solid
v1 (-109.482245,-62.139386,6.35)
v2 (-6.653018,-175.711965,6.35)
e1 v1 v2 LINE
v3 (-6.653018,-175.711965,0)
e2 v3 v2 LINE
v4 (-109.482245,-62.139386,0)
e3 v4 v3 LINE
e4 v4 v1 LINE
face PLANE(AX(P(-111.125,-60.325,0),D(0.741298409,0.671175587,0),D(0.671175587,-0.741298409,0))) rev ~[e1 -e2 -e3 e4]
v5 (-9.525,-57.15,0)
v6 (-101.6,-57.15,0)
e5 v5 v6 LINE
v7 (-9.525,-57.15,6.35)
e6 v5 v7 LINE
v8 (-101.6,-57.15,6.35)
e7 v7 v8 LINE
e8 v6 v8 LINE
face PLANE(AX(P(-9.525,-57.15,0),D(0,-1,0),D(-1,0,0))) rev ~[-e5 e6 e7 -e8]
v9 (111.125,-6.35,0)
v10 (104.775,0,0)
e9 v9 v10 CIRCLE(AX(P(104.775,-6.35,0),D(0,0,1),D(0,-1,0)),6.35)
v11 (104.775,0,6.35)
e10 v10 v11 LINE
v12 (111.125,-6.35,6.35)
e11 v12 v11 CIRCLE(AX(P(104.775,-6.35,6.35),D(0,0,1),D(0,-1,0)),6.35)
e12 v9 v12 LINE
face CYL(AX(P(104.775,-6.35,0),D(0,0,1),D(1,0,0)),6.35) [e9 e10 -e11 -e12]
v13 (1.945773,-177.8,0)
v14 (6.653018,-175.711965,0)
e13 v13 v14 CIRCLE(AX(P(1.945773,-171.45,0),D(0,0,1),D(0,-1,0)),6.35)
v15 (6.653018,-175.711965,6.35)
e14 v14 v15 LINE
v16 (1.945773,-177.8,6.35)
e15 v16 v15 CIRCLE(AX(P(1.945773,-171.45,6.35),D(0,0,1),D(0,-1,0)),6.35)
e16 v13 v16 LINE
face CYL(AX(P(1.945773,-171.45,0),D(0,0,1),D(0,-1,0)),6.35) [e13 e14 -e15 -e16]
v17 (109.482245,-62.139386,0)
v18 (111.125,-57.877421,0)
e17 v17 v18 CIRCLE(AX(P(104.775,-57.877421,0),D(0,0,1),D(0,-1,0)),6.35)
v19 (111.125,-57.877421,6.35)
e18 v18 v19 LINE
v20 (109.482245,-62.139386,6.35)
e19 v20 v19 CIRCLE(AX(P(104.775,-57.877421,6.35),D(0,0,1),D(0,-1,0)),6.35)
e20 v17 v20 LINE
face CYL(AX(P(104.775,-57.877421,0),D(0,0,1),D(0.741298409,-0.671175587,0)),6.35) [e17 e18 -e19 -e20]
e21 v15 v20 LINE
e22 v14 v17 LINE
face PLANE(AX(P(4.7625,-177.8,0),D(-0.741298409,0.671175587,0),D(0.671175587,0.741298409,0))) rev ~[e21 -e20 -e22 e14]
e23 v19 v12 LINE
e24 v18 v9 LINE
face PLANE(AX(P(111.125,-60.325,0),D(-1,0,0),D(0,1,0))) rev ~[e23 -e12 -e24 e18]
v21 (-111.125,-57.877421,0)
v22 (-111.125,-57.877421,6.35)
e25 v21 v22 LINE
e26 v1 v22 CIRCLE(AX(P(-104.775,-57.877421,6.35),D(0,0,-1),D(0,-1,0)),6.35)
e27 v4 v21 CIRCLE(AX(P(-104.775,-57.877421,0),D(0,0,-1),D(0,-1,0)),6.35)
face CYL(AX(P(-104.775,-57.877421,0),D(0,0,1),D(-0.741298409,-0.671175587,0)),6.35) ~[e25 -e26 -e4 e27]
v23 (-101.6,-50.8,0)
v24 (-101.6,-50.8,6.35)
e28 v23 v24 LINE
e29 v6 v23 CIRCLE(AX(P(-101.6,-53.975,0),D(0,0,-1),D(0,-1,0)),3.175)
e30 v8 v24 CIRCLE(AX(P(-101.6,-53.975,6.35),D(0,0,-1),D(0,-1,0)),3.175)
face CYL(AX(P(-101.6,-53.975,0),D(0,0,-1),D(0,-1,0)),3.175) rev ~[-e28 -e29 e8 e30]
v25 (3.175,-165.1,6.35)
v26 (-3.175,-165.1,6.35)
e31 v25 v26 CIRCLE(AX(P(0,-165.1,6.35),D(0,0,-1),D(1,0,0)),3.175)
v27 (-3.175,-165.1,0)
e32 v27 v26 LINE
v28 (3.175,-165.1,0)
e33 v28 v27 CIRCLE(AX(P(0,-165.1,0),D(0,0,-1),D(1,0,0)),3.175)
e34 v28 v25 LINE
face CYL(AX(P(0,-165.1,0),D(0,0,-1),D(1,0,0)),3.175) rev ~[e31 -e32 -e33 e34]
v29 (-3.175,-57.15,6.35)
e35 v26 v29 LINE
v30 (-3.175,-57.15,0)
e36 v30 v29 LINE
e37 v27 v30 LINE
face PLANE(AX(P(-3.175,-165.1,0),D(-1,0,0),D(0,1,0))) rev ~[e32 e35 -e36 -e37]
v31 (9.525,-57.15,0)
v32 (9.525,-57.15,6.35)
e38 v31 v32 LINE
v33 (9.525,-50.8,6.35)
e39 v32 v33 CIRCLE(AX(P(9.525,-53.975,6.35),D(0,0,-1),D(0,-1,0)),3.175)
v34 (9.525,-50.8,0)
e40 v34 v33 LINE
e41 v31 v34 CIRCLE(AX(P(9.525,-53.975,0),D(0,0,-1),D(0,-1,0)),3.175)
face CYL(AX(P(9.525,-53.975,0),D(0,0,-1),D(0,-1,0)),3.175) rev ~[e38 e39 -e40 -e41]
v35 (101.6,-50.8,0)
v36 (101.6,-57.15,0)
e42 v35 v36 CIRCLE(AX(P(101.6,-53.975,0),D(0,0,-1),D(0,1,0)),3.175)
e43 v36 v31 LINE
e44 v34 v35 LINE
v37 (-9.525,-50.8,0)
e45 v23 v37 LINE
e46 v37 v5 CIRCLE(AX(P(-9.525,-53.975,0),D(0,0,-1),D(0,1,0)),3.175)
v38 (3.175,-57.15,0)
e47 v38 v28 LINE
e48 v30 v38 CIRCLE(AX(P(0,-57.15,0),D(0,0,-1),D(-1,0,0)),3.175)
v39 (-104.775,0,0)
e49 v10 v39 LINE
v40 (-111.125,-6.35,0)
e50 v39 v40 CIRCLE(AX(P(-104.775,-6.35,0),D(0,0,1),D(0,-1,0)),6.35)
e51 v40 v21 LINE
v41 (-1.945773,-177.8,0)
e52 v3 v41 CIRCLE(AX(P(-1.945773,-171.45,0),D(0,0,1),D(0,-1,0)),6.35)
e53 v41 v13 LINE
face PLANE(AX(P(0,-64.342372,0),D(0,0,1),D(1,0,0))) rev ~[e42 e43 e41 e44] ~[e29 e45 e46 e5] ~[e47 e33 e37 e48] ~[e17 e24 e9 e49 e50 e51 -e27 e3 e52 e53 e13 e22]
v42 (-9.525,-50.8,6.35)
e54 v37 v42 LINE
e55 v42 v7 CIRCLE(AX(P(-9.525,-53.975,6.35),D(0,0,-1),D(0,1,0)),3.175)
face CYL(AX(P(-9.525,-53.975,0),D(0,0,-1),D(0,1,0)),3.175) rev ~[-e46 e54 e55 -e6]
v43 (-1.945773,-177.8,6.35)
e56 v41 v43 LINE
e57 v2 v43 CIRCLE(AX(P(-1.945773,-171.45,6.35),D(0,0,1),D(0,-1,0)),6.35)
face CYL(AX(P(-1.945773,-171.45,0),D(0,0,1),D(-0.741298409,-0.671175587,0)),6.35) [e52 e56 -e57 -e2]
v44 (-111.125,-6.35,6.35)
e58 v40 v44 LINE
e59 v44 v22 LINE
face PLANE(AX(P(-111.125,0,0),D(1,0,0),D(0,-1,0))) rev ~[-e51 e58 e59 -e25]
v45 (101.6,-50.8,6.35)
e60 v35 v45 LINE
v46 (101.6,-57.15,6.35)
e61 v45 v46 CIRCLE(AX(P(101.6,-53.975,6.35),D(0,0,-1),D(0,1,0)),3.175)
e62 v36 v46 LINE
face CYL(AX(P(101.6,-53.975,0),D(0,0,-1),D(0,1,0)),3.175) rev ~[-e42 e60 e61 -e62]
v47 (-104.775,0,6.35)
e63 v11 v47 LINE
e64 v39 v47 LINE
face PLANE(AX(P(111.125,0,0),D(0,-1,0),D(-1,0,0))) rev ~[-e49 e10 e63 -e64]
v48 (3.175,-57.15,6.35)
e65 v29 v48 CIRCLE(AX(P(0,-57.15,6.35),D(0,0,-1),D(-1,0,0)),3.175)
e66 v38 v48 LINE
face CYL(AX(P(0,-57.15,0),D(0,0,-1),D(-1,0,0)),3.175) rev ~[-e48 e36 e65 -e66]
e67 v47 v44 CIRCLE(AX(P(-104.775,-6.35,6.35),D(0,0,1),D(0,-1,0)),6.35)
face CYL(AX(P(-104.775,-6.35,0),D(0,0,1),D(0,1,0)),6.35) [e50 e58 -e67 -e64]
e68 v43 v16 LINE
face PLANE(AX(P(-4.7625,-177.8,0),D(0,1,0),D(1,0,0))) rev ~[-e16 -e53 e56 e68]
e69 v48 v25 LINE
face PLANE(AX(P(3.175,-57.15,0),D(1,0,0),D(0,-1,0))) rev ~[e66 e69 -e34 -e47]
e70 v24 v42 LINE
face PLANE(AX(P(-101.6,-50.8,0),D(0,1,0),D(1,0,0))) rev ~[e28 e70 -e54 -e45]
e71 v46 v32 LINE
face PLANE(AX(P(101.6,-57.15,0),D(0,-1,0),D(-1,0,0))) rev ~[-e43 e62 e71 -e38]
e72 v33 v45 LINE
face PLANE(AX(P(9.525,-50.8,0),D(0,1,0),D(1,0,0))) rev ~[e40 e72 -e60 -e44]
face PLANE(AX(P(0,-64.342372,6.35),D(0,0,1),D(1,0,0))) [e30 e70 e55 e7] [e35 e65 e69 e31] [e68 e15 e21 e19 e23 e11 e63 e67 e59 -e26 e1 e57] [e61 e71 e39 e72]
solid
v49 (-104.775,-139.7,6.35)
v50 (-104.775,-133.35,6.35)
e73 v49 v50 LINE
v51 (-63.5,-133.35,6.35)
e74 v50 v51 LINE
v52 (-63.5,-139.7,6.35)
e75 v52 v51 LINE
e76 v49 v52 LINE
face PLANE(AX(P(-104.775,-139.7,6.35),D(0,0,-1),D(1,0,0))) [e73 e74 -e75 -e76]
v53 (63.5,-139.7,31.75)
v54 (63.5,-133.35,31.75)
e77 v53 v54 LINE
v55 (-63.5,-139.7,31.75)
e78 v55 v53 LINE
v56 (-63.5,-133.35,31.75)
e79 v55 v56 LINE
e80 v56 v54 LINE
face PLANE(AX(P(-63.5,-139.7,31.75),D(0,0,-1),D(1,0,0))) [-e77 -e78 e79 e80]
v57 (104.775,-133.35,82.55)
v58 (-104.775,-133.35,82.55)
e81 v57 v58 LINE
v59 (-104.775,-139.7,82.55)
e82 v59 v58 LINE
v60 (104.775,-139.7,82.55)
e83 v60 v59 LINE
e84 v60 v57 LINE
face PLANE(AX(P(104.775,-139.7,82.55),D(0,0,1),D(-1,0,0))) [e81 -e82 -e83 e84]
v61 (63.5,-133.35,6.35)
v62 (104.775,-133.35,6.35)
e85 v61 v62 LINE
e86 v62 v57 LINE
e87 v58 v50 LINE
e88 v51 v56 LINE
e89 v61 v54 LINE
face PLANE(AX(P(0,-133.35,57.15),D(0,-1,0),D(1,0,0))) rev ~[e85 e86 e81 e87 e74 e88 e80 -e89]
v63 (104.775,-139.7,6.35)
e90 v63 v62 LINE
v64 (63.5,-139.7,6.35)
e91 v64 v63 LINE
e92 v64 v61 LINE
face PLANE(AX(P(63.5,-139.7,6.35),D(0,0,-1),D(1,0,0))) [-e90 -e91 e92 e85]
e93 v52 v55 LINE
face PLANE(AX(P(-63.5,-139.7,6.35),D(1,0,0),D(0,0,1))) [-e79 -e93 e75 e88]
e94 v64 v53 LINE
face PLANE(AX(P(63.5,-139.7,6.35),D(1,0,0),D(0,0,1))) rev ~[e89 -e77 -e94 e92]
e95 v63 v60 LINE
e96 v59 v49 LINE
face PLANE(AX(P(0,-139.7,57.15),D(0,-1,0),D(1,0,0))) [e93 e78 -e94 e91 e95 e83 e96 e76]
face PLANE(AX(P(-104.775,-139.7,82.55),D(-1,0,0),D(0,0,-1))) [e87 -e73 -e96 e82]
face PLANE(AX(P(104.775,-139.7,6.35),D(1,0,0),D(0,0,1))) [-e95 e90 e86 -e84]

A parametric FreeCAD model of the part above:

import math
import FreeCAD as App
import Part
import Sketcher

V = App.Vector
Q = App.Units.Quantity


def edges_at(feature, points):
    """Names of the edges that pass closest to the given points."""
    edges = feature.Shape.Edges
    near = lambda p: min(range(len(edges)), key=lambda i: edges[i].distToShape(Part.Vertex(*p))[0])
    return sorted({f"Edge{near(p) + 1}" for p in points})

doc = App.newDocument("Part")
body = doc.addObject("PartDesign::Body", "Body")

sketch1 = body.newObject("Sketcher::SketchObject", "Sketch")
sketch1.AttachmentSupport = (doc.getObject("XY_Plane"), [""])
sketch1.MapMode = "FlatFace"
sketch1.addGeometry([
    Part.LineSegment(V(-111.125, -60.325, 0), V(-4.7625, -177.8, 0)),
    Part.LineSegment(V(-4.7625, -177.8, 0), V(4.7625, -177.8, 0)),
    Part.LineSegment(V(4.7625, -177.8, 0), V(111.125, -60.325, 0)),
    Part.LineSegment(V(111.125, -60.325, 0), V(111.125, 0, 0)),
    Part.LineSegment(V(111.125, 0, 0), V(-111.125, 0, 0)),
    Part.LineSegment(V(-111.125, 0, 0), V(-111.125, -60.325, 0)),
    Part.LineSegment(V(-9.525, -57.15, 0), V(-101.6, -57.15, 0)),
    Part.ArcOfCircle(Part.Circle(V(-101.6, -53.975, 0), V(0, 0, 1), 3.175), math.radians(90), math.radians(270)),
    Part.LineSegment(V(-101.6, -50.8, 0), V(-9.525, -50.8, 0)),
    Part.ArcOfCircle(Part.Circle(V(-9.525, -53.975, 0), V(0, 0, 1), 3.175), math.radians(-90), math.radians(90)),
    Part.LineSegment(V(-3.175, -165.1, 0), V(-3.175, -57.15, 0)),
    Part.ArcOfCircle(Part.Circle(V(0, -57.15, 0), V(0, 0, 1), 3.175), math.radians(0), math.radians(180)),
    Part.LineSegment(V(3.175, -57.15, 0), V(3.175, -165.1, 0)),
    Part.ArcOfCircle(Part.Circle(V(0, -165.1, 0), V(0, 0, 1), 3.175), math.radians(180), math.radians(360)),
    Part.LineSegment(V(101.6, -57.15, 0), V(9.525, -57.15, 0)),
    Part.ArcOfCircle(Part.Circle(V(9.525, -53.975, 0), V(0, 0, 1), 3.175), math.radians(90), math.radians(270)),
    Part.LineSegment(V(9.525, -50.8, 0), V(101.6, -50.8, 0)),
    Part.ArcOfCircle(Part.Circle(V(101.6, -53.975, 0), V(0, 0, 1), 3.175), math.radians(-90), math.radians(90)),
], False)
sketch1.addConstraint([
    Sketcher.Constraint("Coincident", 0, 2, 1, 1),
    Sketcher.Constraint("Coincident", 1, 2, 2, 1),
    Sketcher.Constraint("Coincident", 2, 2, 3, 1),
    Sketcher.Constraint("Coincident", 3, 2, 4, 1),
    Sketcher.Constraint("Coincident", 4, 2, 5, 1),
    Sketcher.Constraint("Coincident", 5, 2, 0, 1),
    Sketcher.Constraint("Tangent", 6, 2, 7, 2),
    Sketcher.Constraint("Tangent", 7, 1, 8, 1),
    Sketcher.Constraint("Tangent", 8, 2, 9, 2),
    Sketcher.Constraint("Tangent", 9, 1, 6, 1),
    Sketcher.Constraint("Tangent", 10, 2, 11, 2),
    Sketcher.Constraint("Tangent", 11, 1, 12, 1),
    Sketcher.Constraint("Tangent", 12, 2, 13, 2),
    Sketcher.Constraint("Tangent", 13, 1, 10, 1),
    Sketcher.Constraint("Tangent", 14, 2, 15, 2),
    Sketcher.Constraint("Tangent", 15, 1, 16, 1),
    Sketcher.Constraint("Tangent", 16, 2, 17, 2),
    Sketcher.Constraint("Tangent", 17, 1, 14, 1),
    Sketcher.Constraint("Horizontal", 1),
    Sketcher.Constraint("Vertical", 3),
    Sketcher.Constraint("Horizontal", 4),
    Sketcher.Constraint("Vertical", 5),
    Sketcher.Constraint("Horizontal", 6),
    Sketcher.Constraint("Horizontal", 8),
    Sketcher.Constraint("Vertical", 10),
    Sketcher.Constraint("Vertical", 12),
    Sketcher.Constraint("Horizontal", 14),
    Sketcher.Constraint("Horizontal", 16),
    Sketcher.Constraint("Equal", 9, 11),
    Sketcher.Constraint("Equal", 13, 15),
    Sketcher.Constraint("Symmetric", 3, 2, 4, 2, -1, 1),
    Sketcher.Constraint("Symmetric", 9, 3, 15, 3, -2),
    Sketcher.Constraint("PointOnObject", 11, 3, -2),
    Sketcher.Constraint("Horizontal", 2, 2, 5, 2),
    Sketcher.Constraint("Horizontal", 11, 3, 6, 2),
    Sketcher.Constraint("Equal", 8, 14),
    Sketcher.Constraint("Equal", 0, 2),
    Sketcher.Constraint("DistanceX", 7, 3, -1, 1, Q("4 in")),
    Sketcher.Constraint("DistanceY", 0, 2, -1, 1, Q("7 in")),
    Sketcher.Constraint("DistanceY", 7, 1, -1, 1, Q("2 in")),
    Sketcher.Constraint("Radius", 7, Q("0.125 in")),
    Sketcher.Constraint("DistanceX", 15, 3, 2, 2, Q("4 in")),
    Sketcher.Constraint("DistanceX", 4, 2, 4, 1, Q("8.75 in")),
    Sketcher.Constraint("DistanceY", 10, 1, 10, 2, Q("4.25 in")),
    Sketcher.Constraint("DistanceX", 1, 1, 1, 2, Q("0.375 in")),
    Sketcher.Constraint("DistanceY", 3, 1, 3, 2, Q("2.375 in")),
])
pad1 = body.newObject("PartDesign::Pad", "Pad")
pad1.Profile = sketch1
pad1.Length = Q("0.25 in")
doc.recompute()

fillet = body.newObject("PartDesign::Fillet", "Fillet")
fillet.Base = (pad1, edges_at(pad1, [
    (-111.125, -60.325, 3.175),
    (-111.125, 0, 3.175),
    (-4.763, -177.8, 3.175),
    (4.763, -177.8, 3.175),
    (111.125, 0, 3.175),
    (111.125, -60.325, 3.175),
]))
fillet.Radius = Q("0.25 in")
body2 = doc.addObject("PartDesign::Body", "Body001")

sketch2 = body2.newObject("Sketcher::SketchObject", "Sketch001")
sketch2.AttachmentSupport = (doc.getObject("XZ_Plane001"), [""])
sketch2.MapMode = "FlatFace"
sketch2.AttachmentOffset = App.Placement(V(0, 0, 5.5 * 25.4), App.Rotation())
sketch2.addGeometry([
    Part.LineSegment(V(104.775, 82.55, 0), V(-104.775, 82.55, 0)),
    Part.LineSegment(V(-104.775, 82.55, 0), V(-104.775, 6.35, 0)),
    Part.LineSegment(V(-104.775, 6.35, 0), V(-63.5, 6.35, 0)),
    Part.LineSegment(V(-63.5, 6.35, 0), V(-63.5, 31.75, 0)),
    Part.LineSegment(V(-63.5, 31.75, 0), V(63.5, 31.75, 0)),
    Part.LineSegment(V(63.5, 31.75, 0), V(63.5, 6.35, 0)),
    Part.LineSegment(V(63.5, 6.35, 0), V(104.775, 6.35, 0)),
    Part.LineSegment(V(104.775, 6.35, 0), V(104.775, 82.55, 0)),
], False)
sketch2.addConstraint([
    Sketcher.Constraint("Coincident", 0, 2, 1, 1),
    Sketcher.Constraint("Coincident", 1, 2, 2, 1),
    Sketcher.Constraint("Coincident", 2, 2, 3, 1),
    Sketcher.Constraint("Coincident", 3, 2, 4, 1),
    Sketcher.Constraint("Coincident", 4, 2, 5, 1),
    Sketcher.Constraint("Coincident", 5, 2, 6, 1),
    Sketcher.Constraint("Coincident", 6, 2, 7, 1),
    Sketcher.Constraint("Coincident", 7, 2, 0, 1),
    Sketcher.Constraint("Horizontal", 0),
    Sketcher.Constraint("Vertical", 1),
    Sketcher.Constraint("Horizontal", 2),
    Sketcher.Constraint("Vertical", 3),
    Sketcher.Constraint("Horizontal", 4),
    Sketcher.Constraint("Vertical", 5),
    Sketcher.Constraint("Horizontal", 6),
    Sketcher.Constraint("Vertical", 7),
    Sketcher.Constraint("Symmetric", 2, 2, 5, 2, -2),
    Sketcher.Constraint("Equal", 2, 6),
    Sketcher.Constraint("DistanceX", 4, 1, 4, 2, Q("5 in")),
    Sketcher.Constraint("DistanceY", 1, 2, 1, 1, Q("3 in")),
    Sketcher.Constraint("DistanceY", 3, 1, 3, 2, Q("1 in")),
    Sketcher.Constraint("DistanceX", 0, 2, 0, 1, Q("8.25 in")),
    Sketcher.Constraint("DistanceY", -1, 1, 0, 2, Q("3.25 in")),
])
pad2 = body2.newObject("PartDesign::Pad", "Pad001")
pad2.Profile = sketch2
pad2.Length = Q("0.25 in")
pad2.Reversed = True

doc.recompute()
